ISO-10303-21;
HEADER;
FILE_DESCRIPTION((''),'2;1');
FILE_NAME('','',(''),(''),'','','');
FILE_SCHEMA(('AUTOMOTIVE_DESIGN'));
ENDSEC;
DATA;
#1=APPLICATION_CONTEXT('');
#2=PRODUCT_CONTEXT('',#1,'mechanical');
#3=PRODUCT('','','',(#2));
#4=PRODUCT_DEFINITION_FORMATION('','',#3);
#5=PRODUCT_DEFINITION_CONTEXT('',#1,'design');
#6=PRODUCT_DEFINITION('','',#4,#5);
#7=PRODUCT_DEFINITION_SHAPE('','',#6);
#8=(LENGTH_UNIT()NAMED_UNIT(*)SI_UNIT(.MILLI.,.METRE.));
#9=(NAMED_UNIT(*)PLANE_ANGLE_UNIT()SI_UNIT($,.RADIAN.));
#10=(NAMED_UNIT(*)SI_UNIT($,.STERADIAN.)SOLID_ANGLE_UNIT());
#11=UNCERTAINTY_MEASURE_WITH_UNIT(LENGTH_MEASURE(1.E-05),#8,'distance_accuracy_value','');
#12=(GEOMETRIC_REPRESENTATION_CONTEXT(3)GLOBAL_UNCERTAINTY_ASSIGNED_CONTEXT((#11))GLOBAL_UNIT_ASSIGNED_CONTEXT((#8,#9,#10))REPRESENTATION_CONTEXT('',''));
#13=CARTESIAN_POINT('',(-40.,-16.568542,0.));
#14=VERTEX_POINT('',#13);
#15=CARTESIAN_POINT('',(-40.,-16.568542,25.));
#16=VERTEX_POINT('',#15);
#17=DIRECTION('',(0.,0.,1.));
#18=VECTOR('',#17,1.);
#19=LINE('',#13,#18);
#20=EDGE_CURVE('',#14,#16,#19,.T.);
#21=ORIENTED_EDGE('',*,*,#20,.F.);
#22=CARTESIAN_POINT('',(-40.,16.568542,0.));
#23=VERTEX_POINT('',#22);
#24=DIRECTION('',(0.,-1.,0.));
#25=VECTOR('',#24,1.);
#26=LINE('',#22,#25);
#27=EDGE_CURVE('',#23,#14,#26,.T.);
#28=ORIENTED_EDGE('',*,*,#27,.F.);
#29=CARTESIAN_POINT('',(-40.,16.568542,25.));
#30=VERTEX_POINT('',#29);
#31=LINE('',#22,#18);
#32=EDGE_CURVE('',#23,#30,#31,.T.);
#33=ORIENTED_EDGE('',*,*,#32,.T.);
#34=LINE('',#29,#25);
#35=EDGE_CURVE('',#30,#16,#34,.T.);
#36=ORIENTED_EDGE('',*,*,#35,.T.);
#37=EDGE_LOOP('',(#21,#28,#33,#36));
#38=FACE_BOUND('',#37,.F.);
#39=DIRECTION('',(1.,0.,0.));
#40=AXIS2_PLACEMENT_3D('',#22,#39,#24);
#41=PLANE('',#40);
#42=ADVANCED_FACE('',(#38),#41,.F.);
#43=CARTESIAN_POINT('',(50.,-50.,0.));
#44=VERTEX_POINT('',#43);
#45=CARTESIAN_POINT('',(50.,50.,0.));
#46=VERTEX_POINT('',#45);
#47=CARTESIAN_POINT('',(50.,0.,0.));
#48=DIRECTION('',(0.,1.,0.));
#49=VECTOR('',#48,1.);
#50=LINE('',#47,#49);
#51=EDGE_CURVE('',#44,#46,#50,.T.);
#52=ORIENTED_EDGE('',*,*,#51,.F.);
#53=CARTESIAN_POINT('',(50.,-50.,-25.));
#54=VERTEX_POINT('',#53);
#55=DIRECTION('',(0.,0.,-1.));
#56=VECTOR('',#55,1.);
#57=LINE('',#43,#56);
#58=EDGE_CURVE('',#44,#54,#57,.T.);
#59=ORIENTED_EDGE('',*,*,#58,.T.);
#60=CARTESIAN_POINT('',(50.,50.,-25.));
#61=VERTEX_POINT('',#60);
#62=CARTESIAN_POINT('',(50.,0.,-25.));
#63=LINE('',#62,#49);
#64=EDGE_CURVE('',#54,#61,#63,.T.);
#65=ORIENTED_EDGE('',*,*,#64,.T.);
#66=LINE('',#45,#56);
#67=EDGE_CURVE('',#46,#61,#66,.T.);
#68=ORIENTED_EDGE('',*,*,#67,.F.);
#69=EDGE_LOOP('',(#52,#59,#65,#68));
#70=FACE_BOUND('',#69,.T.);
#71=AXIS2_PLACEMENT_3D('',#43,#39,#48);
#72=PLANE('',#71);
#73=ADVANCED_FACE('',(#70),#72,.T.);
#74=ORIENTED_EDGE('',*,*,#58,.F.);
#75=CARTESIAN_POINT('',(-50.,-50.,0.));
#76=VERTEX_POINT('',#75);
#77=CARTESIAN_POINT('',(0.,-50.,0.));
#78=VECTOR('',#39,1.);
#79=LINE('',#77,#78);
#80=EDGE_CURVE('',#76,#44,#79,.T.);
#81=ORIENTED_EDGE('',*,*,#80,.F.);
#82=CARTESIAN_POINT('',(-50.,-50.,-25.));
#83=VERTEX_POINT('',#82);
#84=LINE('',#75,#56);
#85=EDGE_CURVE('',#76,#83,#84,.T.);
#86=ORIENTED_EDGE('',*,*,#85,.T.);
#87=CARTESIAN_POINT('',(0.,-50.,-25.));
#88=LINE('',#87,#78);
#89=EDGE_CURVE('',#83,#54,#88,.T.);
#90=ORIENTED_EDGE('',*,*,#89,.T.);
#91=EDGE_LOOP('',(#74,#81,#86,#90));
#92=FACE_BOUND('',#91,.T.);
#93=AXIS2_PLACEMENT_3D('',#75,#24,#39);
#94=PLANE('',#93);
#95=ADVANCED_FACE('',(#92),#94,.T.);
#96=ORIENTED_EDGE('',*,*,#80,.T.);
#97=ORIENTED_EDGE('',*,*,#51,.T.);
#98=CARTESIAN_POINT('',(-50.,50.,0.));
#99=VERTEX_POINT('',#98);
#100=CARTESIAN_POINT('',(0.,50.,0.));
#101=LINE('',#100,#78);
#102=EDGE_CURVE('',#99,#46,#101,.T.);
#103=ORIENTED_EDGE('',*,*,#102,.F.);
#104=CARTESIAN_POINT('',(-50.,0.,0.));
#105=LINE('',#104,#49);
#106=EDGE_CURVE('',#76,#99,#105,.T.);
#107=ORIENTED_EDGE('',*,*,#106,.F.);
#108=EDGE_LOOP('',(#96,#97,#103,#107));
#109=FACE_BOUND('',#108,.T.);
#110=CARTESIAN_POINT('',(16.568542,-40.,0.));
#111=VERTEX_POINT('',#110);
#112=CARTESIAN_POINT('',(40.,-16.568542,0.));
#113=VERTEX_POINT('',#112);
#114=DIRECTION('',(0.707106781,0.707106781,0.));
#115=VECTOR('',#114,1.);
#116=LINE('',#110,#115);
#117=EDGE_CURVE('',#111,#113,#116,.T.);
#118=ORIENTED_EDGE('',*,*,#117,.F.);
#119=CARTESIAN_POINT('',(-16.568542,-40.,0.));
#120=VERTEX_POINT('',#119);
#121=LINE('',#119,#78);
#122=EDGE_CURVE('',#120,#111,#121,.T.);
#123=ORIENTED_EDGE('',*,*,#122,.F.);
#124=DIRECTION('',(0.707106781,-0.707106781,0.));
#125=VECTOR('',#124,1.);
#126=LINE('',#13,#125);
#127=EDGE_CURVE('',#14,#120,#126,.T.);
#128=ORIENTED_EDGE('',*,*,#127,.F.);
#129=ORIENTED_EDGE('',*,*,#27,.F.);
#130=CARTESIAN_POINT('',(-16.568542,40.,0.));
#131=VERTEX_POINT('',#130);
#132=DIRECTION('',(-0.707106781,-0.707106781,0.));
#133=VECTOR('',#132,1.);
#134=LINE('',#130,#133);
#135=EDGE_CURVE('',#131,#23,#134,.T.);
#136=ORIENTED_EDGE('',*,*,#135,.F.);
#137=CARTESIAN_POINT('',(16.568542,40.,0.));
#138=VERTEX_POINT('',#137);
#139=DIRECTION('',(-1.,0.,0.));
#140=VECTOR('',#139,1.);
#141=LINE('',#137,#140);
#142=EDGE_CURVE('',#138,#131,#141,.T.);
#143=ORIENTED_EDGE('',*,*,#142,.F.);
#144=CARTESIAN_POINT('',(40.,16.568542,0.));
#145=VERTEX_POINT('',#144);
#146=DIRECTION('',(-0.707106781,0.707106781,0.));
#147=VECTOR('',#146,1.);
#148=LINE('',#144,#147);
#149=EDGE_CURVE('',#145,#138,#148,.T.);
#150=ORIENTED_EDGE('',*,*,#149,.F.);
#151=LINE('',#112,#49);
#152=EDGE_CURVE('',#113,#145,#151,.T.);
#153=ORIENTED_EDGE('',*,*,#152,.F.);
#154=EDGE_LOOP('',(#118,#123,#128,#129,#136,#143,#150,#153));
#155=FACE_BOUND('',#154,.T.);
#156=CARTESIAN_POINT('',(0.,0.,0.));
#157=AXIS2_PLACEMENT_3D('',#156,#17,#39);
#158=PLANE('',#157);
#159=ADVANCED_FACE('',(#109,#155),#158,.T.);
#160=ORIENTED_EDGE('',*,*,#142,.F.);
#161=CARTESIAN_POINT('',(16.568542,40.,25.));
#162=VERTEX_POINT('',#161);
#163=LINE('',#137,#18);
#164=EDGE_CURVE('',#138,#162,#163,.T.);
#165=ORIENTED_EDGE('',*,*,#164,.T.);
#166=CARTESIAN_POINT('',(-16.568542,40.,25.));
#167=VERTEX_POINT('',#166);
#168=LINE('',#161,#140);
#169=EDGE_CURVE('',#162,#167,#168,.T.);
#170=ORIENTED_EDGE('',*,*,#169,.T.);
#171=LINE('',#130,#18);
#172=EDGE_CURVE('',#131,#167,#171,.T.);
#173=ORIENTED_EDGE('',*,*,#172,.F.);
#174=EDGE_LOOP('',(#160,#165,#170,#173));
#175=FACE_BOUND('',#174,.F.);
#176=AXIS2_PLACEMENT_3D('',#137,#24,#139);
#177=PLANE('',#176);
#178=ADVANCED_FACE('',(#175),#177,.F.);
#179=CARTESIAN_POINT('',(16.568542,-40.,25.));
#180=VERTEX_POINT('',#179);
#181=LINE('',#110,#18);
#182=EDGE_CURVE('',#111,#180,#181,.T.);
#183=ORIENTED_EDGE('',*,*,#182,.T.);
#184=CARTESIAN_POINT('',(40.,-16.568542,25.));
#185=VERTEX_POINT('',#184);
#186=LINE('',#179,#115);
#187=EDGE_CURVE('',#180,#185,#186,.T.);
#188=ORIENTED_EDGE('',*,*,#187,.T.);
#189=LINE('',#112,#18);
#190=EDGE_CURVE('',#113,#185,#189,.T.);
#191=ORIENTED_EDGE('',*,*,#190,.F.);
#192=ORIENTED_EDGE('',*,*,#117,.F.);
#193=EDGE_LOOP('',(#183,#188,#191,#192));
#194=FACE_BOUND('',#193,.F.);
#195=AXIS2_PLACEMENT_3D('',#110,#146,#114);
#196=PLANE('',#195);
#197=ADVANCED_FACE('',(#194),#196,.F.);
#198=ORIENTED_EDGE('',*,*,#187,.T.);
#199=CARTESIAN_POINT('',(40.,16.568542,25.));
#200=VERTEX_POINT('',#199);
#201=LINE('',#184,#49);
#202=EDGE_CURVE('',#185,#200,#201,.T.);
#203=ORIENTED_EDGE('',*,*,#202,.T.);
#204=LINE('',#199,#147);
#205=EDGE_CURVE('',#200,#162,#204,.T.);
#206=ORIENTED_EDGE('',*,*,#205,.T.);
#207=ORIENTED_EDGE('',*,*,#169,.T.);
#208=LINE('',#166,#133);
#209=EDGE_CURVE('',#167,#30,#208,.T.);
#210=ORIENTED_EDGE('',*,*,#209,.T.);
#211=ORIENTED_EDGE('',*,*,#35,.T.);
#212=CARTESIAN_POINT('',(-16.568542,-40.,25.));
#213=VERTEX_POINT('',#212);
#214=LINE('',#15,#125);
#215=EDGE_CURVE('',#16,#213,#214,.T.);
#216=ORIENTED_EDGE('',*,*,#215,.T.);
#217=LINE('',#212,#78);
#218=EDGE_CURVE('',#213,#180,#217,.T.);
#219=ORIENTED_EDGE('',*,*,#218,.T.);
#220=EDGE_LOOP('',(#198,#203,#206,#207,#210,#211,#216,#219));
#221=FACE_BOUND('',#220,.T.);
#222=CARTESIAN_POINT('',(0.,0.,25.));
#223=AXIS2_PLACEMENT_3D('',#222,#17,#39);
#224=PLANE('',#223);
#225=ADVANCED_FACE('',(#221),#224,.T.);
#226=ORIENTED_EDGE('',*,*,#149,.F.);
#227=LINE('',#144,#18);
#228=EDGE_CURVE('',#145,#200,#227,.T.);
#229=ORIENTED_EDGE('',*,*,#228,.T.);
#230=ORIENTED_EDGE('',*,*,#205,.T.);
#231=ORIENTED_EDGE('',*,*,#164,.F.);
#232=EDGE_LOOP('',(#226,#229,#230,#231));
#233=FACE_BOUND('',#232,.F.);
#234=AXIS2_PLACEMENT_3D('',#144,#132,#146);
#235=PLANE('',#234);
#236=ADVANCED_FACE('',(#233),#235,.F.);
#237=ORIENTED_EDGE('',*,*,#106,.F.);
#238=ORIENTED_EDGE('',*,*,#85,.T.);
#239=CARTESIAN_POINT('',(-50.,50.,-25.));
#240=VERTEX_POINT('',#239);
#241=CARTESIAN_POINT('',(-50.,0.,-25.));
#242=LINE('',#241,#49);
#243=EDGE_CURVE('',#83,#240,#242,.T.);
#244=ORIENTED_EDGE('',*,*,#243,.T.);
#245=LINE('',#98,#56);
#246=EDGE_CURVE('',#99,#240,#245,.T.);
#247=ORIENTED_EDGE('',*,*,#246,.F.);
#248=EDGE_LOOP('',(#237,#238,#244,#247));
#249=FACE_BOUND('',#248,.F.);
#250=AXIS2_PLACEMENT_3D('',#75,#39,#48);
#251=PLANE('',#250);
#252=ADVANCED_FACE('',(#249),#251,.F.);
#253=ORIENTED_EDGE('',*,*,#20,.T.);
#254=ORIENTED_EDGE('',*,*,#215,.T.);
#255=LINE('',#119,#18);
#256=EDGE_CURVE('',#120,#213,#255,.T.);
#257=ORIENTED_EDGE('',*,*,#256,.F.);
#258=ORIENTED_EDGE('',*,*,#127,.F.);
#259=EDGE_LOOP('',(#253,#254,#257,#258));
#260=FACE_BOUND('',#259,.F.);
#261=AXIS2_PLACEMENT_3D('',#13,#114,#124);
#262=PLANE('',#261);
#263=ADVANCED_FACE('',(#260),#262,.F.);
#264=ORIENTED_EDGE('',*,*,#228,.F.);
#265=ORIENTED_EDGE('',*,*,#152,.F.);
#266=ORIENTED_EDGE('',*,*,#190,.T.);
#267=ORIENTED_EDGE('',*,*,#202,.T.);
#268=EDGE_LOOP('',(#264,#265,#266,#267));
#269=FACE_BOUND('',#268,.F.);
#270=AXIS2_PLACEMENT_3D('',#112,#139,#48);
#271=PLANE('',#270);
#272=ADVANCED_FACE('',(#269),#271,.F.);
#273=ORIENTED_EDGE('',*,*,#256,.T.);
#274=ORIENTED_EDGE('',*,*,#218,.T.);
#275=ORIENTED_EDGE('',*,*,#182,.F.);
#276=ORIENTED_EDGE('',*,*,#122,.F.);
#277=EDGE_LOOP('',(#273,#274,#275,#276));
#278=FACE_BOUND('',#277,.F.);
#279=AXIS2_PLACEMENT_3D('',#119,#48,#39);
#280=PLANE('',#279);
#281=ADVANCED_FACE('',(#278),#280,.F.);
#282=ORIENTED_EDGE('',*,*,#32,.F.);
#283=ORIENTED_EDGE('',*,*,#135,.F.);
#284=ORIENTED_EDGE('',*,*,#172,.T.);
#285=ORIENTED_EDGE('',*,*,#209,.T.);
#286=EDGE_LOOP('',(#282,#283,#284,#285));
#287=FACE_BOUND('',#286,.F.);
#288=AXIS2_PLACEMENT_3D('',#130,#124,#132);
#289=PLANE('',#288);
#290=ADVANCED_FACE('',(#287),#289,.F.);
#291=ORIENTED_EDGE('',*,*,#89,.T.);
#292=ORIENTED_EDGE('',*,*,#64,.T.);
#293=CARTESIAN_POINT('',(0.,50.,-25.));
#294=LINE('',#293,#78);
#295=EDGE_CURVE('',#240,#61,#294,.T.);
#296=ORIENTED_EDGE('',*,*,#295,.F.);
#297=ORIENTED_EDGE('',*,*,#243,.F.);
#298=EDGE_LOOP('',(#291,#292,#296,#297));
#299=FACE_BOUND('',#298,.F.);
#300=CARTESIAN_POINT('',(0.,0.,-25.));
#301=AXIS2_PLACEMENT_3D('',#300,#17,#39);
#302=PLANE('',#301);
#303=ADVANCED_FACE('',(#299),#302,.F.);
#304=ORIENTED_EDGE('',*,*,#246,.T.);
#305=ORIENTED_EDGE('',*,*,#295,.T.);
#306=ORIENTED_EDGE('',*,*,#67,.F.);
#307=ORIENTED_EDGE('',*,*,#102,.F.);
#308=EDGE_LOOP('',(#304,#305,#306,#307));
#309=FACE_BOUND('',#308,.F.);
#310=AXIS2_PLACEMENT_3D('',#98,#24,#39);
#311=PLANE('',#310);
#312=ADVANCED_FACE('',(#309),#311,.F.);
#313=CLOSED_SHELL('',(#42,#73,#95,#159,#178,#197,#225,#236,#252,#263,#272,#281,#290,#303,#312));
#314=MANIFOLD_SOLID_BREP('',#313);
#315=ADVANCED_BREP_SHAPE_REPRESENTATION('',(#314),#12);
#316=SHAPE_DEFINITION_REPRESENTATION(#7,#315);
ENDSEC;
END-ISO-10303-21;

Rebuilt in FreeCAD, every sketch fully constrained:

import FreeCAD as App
import Part
import Sketcher

V = App.Vector

doc = App.newDocument("Part")
body = doc.addObject("PartDesign::Body", "Body")

# Sketch on XY plane
sketch1 = doc.addObject("Sketcher::SketchObject", "Sketch")
body.addObject(sketch1)
sketch1.AttachmentSupport = (doc.XY_Plane, [""])
sketch1.MapMode = "FlatFace"
sketch1.addGeometry(Part.LineSegment(V(-50, 50, 0), V(-50, -50, 0)), False)
sketch1.addGeometry(Part.LineSegment(V(-50, -50, 0), V(50, -50, 0)), False)
sketch1.addGeometry(Part.LineSegment(V(50, -50, 0), V(50, 50, 0)), False)
sketch1.addGeometry(Part.LineSegment(V(50, 50, 0), V(-50, 50, 0)), False)
sketch1.addConstraint(Sketcher.Constraint("Coincident", 0, 2, 1, 1))
sketch1.addConstraint(Sketcher.Constraint("Coincident", 1, 2, 2, 1))
sketch1.addConstraint(Sketcher.Constraint("Coincident", 2, 2, 3, 1))
sketch1.addConstraint(Sketcher.Constraint("Coincident", 3, 2, 0, 1))
sketch1.addConstraint(Sketcher.Constraint("Vertical", 0))
sketch1.addConstraint(Sketcher.Constraint("Horizontal", 1))
sketch1.addConstraint(Sketcher.Constraint("Vertical", 2))
sketch1.addConstraint(Sketcher.Constraint("Horizontal", 3))
sketch1.addConstraint(Sketcher.Constraint("Symmetric", 0, 2, 2, 2, -1, 1))
sketch1.addConstraint(Sketcher.Constraint("Equal", 3, 0))
sketch1.addConstraint(Sketcher.Constraint("DistanceX", 1, 1, 1, 2, 100.0))
pad1 = doc.addObject("PartDesign::Pad", "Pad")
body.addObject(pad1)
pad1.Profile = sketch1
pad1.Length = 25
pad1.Reversed = True

# Sketch on XY plane
sketch2 = doc.addObject("Sketcher::SketchObject", "Sketch001")
body.addObject(sketch2)
sketch2.AttachmentSupport = (doc.XY_Plane, [""])
sketch2.MapMode = "FlatFace"
sketch2.addGeometry(Part.LineSegment(V(17, 40, 0), V(-17, 40, 0)), False)
sketch2.addGeometry(Part.LineSegment(V(-17, 40, 0), V(-40, 17, 0)), False)
sketch2.addGeometry(Part.LineSegment(V(-40, 17, 0), V(-40, -17, 0)), False)
sketch2.addGeometry(Part.LineSegment(V(-40, -17, 0), V(-17, -40, 0)), False)
sketch2.addGeometry(Part.LineSegment(V(-17, -40, 0), V(17, -40, 0)), False)
sketch2.addGeometry(Part.LineSegment(V(17, -40, 0), V(40, -17, 0)), False)
sketch2.addGeometry(Part.LineSegment(V(40, -17, 0), V(40, 17, 0)), False)
sketch2.addGeometry(Part.LineSegment(V(40, 17, 0), V(17, 40, 0)), False)
sketch2.addConstraint(Sketcher.Constraint("Coincident", 0, 2, 1, 1))
sketch2.addConstraint(Sketcher.Constraint("Coincident", 1, 2, 2, 1))
sketch2.addConstraint(Sketcher.Constraint("Coincident", 2, 2, 3, 1))
sketch2.addConstraint(Sketcher.Constraint("Coincident", 3, 2, 4, 1))
sketch2.addConstraint(Sketcher.Constraint("Coincident", 4, 2, 5, 1))
sketch2.addConstraint(Sketcher.Constraint("Coincident", 5, 2, 6, 1))
sketch2.addConstraint(Sketcher.Constraint("Coincident", 6, 2, 7, 1))
sketch2.addConstraint(Sketcher.Constraint("Coincident", 7, 2, 0, 1))
sketch2.addConstraint(Sketcher.Constraint("Horizontal", 0))
sketch2.addConstraint(Sketcher.Constraint("Vertical", 2))
sketch2.addConstraint(Sketcher.Constraint("Horizontal", 4))
sketch2.addConstraint(Sketcher.Constraint("Vertical", 6))
sketch2.addConstraint(Sketcher.Constraint("Symmetric", 0, 2, 4, 2, -1, 1))
sketch2.addConstraint(Sketcher.Constraint("Symmetric", 1, 2, 5, 2, -1, 1))
sketch2.addConstraint(Sketcher.Constraint("Perpendicular", 1, 3))
sketch2.addConstraint(Sketcher.Constraint("Perpendicular", 5, 7))
sketch2.addConstraint(Sketcher.Constraint("Horizontal", 2, 2, 5, 2))
sketch2.addConstraint(Sketcher.Constraint("Horizontal", 1, 2, 6, 2))
sketch2.addConstraint(Sketcher.Constraint("Vertical", 0, 2, 3, 2))
sketch2.addConstraint(Sketcher.Constraint("Equal", 4, 2))
sketch2.addConstraint(Sketcher.Constraint("DistanceY", -1, 1, 0, 2, 40.0))
sketch2.addConstraint(Sketcher.Constraint("DistanceX", 0, 2, 0, 1, 33.137084))
pad2 = doc.addObject("PartDesign::Pad", "Pad001")
body.addObject(pad2)
pad2.Profile = sketch2
pad2.Length = 25

doc.recompute()
